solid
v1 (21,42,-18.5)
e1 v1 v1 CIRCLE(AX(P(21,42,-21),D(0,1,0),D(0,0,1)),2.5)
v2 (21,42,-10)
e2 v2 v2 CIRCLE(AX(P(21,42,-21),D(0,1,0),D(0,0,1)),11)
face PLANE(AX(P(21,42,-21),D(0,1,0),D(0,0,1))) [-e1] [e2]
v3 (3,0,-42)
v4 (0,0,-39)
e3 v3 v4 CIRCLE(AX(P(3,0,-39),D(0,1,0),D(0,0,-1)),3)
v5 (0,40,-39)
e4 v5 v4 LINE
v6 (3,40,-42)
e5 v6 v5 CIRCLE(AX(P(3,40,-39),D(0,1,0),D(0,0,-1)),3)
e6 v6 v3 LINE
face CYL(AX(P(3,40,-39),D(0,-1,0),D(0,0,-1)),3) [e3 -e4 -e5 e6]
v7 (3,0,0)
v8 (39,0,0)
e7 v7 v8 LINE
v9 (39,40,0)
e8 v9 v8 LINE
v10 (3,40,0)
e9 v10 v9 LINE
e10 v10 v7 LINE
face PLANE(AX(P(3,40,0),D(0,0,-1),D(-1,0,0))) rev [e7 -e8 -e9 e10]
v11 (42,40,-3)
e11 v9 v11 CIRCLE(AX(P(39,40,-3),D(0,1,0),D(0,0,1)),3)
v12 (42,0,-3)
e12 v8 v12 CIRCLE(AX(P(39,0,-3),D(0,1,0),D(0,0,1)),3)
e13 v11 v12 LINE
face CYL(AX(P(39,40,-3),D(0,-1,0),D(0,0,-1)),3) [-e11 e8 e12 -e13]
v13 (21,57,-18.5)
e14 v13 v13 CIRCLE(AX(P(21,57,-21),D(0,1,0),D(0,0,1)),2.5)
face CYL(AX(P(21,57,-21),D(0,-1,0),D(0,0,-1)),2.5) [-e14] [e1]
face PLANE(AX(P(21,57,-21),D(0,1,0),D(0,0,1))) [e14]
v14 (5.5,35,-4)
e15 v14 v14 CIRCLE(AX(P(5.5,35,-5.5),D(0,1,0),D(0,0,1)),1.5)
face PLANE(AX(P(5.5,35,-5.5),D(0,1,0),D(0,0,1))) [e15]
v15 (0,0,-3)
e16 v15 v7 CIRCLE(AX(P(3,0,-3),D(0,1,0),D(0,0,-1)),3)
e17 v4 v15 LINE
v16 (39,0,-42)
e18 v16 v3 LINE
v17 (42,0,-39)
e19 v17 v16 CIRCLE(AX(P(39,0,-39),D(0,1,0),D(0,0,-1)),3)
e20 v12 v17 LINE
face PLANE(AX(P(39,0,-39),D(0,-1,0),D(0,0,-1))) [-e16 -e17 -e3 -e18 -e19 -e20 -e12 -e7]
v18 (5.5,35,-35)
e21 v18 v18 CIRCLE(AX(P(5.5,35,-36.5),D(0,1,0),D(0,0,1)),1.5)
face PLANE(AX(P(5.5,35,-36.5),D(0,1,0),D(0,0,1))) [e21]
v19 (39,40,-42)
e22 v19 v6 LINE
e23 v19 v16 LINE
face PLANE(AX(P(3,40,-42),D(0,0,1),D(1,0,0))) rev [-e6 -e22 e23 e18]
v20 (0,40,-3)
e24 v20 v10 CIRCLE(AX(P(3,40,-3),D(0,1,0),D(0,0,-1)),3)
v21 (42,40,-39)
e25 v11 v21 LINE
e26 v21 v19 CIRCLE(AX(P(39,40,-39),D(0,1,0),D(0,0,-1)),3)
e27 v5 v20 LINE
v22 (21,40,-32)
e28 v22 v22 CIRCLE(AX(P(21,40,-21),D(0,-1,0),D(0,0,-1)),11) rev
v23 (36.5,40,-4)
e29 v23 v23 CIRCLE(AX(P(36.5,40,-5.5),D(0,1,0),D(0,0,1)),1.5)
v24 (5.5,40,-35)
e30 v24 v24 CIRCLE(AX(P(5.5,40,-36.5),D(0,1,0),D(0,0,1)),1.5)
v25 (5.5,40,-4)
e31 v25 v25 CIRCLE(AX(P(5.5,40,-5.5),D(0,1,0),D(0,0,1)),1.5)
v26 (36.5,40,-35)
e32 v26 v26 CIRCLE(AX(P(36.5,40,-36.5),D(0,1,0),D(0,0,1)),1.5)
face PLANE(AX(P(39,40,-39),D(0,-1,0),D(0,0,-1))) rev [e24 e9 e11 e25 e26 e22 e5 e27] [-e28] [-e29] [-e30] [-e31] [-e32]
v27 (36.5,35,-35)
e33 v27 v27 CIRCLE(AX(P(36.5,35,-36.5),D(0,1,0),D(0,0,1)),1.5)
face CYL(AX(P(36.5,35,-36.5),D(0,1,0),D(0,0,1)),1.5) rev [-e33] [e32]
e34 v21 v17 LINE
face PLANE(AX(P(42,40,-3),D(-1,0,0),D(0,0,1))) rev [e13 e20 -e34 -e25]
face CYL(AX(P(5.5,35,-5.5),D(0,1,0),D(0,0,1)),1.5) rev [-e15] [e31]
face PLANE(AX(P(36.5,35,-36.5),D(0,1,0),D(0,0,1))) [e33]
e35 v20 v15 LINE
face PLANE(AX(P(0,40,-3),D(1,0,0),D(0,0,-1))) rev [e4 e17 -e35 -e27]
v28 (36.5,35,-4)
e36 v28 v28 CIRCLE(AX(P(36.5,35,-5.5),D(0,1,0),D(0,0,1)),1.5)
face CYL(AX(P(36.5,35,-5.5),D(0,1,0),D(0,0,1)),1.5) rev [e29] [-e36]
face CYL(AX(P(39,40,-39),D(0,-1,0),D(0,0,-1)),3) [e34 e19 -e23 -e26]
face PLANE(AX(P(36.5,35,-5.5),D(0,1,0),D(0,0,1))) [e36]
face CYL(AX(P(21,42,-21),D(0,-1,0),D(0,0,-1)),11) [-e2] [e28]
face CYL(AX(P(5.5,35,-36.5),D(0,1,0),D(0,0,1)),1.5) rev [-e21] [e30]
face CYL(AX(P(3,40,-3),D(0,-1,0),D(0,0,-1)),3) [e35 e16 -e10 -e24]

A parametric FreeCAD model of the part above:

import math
import FreeCAD as App
import Part
import Sketcher

V = App.Vector

doc = App.newDocument("Part")
body = doc.addObject("PartDesign::Body", "Body")

# Sketch on XZ plane
sketch1 = doc.addObject("Sketcher::SketchObject", "Sketch")
body.addObject(sketch1)
sketch1.AttachmentSupport = (doc.XZ_Plane, [""])
sketch1.MapMode = "FlatFace"
sketch1.addGeometry([
    Part.LineSegment(V(3, 0, 0), V(39, 0, 0)),  # 0
    Part.ArcOfCircle(Part.Circle(V(39, -3, 0), V(0, 0, 1), 3), math.radians(0), math.radians(90)),  # 1
    Part.LineSegment(V(42, -3, 0), V(42, -39, 0)),  # 2
    Part.ArcOfCircle(Part.Circle(V(39, -39, 0), V(0, 0, 1), 3), math.radians(-90), math.radians(0)),  # 3
    Part.LineSegment(V(39, -42, 0), V(3, -42, 0)),  # 4
    Part.ArcOfCircle(Part.Circle(V(3, -39, 0), V(0, 0, 1), 3), math.radians(180), math.radians(270)),  # 5
    Part.LineSegment(V(0, -39, 0), V(0, -3, 0)),  # 6
    Part.ArcOfCircle(Part.Circle(V(3, -3, 0), V(0, 0, 1), 3), math.radians(90), math.radians(180)),  # 7
], False)
sketch1.addConstraint([
    Sketcher.Constraint("Tangent", 0, 2, 1, 2),
    Sketcher.Constraint("Tangent", 1, 1, 2, 1),
    Sketcher.Constraint("Tangent", 2, 2, 3, 2),
    Sketcher.Constraint("Tangent", 3, 1, 4, 1),
    Sketcher.Constraint("Tangent", 4, 2, 5, 2),
    Sketcher.Constraint("Tangent", 5, 1, 6, 1),
    Sketcher.Constraint("Tangent", 6, 2, 7, 2),
    Sketcher.Constraint("Tangent", 7, 1, 0, 1),
    Sketcher.Constraint("Horizontal", 0),
    Sketcher.Constraint("Vertical", 2),
    Sketcher.Constraint("Horizontal", 4),
    Sketcher.Constraint("Vertical", 6),
    Sketcher.Constraint("Equal", 1, 3),
    Sketcher.Constraint("Equal", 3, 5),
    Sketcher.Constraint("Equal", 5, 7),
    Sketcher.Constraint("PointOnObject", 0, 2, -1),
    Sketcher.Constraint("PointOnObject", 5, 1, -2),
    Sketcher.Constraint("Equal", 4, 2),
    Sketcher.Constraint("Radius", 1, 3.0),
    Sketcher.Constraint("DistanceX", 0, 1, 0, 2, 36.0),
])
pad1 = doc.addObject("PartDesign::Pad", "Pad")
body.addObject(pad1)
pad1.Profile = sketch1
pad1.Length = 40
pad1.Reversed = True

# Sketch on XZ plane
sketch2 = doc.addObject("Sketcher::SketchObject", "Sketch001")
body.addObject(sketch2)
sketch2.AttachmentSupport = (doc.XZ_Plane, [""])
sketch2.MapMode = "FlatFace"
sketch2.AttachmentOffset = App.Placement(V(0, 0, -40), App.Rotation())
sketch2.addGeometry(Part.Circle(V(21, -21, 0), V(0, 0, 1), 11), False)
sketch2.addConstraint([
    Sketcher.Constraint("Diameter", 0, 22.0),
    Sketcher.Constraint("DistanceX", -1, 1, 0, 3, 21.0),
    Sketcher.Constraint("DistanceY", 0, 3, -1, 1, 21.0),
])
pad2 = doc.addObject("PartDesign::Pad", "Pad001")
body.addObject(pad2)
pad2.Profile = sketch2
pad2.Length = 2
pad2.Reversed = True

# Sketch on XZ plane
sketch3 = doc.addObject("Sketcher::SketchObject", "Sketch002")
body.addObject(sketch3)
sketch3.AttachmentSupport = (doc.XZ_Plane, [""])
sketch3.MapMode = "FlatFace"
sketch3.AttachmentOffset = App.Placement(V(0, 0, -42), App.Rotation())
sketch3.addGeometry(Part.Circle(V(21, -21, 0), V(0, 0, 1), 2.5), False)
sketch3.addConstraint([
    Sketcher.Constraint("Diameter", 0, 5.0),
    Sketcher.Constraint("DistanceX", -1, 1, 0, 3, 21.0),
    Sketcher.Constraint("DistanceY", 0, 3, -1, 1, 21.0),
])
pad3 = doc.addObject("PartDesign::Pad", "Pad002")
body.addObject(pad3)
pad3.Profile = sketch3
pad3.Length = 15
pad3.Reversed = True

# Sketch on XZ plane
sketch4 = doc.addObject("Sketcher::SketchObject", "Sketch003")
body.addObject(sketch4)
sketch4.AttachmentSupport = (doc.XZ_Plane, [""])
sketch4.MapMode = "FlatFace"
sketch4.AttachmentOffset = App.Placement(V(0, 0, -40), App.Rotation())
sketch4.addGeometry([
    Part.Circle(V(5.5, -36.5, 0), V(0, 0, 1), 1.5),
    Part.Circle(V(36.5, -36.5, 0), V(0, 0, 1), 1.5),
    Part.Circle(V(36.5, -5.5, 0), V(0, 0, 1), 1.5),
    Part.Circle(V(5.5, -5.5, 0), V(0, 0, 1), 1.5),
], False)
sketch4.addConstraint([
    Sketcher.Constraint("Equal", 0, 1),
    Sketcher.Constraint("Equal", 1, 2),
    Sketcher.Constraint("Equal", 2, 3),
    Sketcher.Constraint("Horizontal", 0, 3, 1, 3),
    Sketcher.Constraint("Horizontal", 2, 3, 3, 3),
    Sketcher.Constraint("Vertical", 1, 3, 2, 3),
    Sketcher.Constraint("Vertical", 0, 3, 3, 3),
    Sketcher.Constraint("Diameter", 0, 3.0),
    Sketcher.Constraint("DistanceX", 0, 3, 1, 3, 31.0),
    Sketcher.Constraint("DistanceY", 1, 3, 2, 3, 31.0),
    Sketcher.Constraint("DistanceX", -1, 1, 0, 3, 5.5),
    Sketcher.Constraint("DistanceY", 0, 3, -1, 1, 36.5),
])
pocket1 = doc.addObject("PartDesign::Pocket", "Pocket")
body.addObject(pocket1)
pocket1.Profile = sketch4
pocket1.Length = 5
pocket1.Reversed = True

doc.recompute()
